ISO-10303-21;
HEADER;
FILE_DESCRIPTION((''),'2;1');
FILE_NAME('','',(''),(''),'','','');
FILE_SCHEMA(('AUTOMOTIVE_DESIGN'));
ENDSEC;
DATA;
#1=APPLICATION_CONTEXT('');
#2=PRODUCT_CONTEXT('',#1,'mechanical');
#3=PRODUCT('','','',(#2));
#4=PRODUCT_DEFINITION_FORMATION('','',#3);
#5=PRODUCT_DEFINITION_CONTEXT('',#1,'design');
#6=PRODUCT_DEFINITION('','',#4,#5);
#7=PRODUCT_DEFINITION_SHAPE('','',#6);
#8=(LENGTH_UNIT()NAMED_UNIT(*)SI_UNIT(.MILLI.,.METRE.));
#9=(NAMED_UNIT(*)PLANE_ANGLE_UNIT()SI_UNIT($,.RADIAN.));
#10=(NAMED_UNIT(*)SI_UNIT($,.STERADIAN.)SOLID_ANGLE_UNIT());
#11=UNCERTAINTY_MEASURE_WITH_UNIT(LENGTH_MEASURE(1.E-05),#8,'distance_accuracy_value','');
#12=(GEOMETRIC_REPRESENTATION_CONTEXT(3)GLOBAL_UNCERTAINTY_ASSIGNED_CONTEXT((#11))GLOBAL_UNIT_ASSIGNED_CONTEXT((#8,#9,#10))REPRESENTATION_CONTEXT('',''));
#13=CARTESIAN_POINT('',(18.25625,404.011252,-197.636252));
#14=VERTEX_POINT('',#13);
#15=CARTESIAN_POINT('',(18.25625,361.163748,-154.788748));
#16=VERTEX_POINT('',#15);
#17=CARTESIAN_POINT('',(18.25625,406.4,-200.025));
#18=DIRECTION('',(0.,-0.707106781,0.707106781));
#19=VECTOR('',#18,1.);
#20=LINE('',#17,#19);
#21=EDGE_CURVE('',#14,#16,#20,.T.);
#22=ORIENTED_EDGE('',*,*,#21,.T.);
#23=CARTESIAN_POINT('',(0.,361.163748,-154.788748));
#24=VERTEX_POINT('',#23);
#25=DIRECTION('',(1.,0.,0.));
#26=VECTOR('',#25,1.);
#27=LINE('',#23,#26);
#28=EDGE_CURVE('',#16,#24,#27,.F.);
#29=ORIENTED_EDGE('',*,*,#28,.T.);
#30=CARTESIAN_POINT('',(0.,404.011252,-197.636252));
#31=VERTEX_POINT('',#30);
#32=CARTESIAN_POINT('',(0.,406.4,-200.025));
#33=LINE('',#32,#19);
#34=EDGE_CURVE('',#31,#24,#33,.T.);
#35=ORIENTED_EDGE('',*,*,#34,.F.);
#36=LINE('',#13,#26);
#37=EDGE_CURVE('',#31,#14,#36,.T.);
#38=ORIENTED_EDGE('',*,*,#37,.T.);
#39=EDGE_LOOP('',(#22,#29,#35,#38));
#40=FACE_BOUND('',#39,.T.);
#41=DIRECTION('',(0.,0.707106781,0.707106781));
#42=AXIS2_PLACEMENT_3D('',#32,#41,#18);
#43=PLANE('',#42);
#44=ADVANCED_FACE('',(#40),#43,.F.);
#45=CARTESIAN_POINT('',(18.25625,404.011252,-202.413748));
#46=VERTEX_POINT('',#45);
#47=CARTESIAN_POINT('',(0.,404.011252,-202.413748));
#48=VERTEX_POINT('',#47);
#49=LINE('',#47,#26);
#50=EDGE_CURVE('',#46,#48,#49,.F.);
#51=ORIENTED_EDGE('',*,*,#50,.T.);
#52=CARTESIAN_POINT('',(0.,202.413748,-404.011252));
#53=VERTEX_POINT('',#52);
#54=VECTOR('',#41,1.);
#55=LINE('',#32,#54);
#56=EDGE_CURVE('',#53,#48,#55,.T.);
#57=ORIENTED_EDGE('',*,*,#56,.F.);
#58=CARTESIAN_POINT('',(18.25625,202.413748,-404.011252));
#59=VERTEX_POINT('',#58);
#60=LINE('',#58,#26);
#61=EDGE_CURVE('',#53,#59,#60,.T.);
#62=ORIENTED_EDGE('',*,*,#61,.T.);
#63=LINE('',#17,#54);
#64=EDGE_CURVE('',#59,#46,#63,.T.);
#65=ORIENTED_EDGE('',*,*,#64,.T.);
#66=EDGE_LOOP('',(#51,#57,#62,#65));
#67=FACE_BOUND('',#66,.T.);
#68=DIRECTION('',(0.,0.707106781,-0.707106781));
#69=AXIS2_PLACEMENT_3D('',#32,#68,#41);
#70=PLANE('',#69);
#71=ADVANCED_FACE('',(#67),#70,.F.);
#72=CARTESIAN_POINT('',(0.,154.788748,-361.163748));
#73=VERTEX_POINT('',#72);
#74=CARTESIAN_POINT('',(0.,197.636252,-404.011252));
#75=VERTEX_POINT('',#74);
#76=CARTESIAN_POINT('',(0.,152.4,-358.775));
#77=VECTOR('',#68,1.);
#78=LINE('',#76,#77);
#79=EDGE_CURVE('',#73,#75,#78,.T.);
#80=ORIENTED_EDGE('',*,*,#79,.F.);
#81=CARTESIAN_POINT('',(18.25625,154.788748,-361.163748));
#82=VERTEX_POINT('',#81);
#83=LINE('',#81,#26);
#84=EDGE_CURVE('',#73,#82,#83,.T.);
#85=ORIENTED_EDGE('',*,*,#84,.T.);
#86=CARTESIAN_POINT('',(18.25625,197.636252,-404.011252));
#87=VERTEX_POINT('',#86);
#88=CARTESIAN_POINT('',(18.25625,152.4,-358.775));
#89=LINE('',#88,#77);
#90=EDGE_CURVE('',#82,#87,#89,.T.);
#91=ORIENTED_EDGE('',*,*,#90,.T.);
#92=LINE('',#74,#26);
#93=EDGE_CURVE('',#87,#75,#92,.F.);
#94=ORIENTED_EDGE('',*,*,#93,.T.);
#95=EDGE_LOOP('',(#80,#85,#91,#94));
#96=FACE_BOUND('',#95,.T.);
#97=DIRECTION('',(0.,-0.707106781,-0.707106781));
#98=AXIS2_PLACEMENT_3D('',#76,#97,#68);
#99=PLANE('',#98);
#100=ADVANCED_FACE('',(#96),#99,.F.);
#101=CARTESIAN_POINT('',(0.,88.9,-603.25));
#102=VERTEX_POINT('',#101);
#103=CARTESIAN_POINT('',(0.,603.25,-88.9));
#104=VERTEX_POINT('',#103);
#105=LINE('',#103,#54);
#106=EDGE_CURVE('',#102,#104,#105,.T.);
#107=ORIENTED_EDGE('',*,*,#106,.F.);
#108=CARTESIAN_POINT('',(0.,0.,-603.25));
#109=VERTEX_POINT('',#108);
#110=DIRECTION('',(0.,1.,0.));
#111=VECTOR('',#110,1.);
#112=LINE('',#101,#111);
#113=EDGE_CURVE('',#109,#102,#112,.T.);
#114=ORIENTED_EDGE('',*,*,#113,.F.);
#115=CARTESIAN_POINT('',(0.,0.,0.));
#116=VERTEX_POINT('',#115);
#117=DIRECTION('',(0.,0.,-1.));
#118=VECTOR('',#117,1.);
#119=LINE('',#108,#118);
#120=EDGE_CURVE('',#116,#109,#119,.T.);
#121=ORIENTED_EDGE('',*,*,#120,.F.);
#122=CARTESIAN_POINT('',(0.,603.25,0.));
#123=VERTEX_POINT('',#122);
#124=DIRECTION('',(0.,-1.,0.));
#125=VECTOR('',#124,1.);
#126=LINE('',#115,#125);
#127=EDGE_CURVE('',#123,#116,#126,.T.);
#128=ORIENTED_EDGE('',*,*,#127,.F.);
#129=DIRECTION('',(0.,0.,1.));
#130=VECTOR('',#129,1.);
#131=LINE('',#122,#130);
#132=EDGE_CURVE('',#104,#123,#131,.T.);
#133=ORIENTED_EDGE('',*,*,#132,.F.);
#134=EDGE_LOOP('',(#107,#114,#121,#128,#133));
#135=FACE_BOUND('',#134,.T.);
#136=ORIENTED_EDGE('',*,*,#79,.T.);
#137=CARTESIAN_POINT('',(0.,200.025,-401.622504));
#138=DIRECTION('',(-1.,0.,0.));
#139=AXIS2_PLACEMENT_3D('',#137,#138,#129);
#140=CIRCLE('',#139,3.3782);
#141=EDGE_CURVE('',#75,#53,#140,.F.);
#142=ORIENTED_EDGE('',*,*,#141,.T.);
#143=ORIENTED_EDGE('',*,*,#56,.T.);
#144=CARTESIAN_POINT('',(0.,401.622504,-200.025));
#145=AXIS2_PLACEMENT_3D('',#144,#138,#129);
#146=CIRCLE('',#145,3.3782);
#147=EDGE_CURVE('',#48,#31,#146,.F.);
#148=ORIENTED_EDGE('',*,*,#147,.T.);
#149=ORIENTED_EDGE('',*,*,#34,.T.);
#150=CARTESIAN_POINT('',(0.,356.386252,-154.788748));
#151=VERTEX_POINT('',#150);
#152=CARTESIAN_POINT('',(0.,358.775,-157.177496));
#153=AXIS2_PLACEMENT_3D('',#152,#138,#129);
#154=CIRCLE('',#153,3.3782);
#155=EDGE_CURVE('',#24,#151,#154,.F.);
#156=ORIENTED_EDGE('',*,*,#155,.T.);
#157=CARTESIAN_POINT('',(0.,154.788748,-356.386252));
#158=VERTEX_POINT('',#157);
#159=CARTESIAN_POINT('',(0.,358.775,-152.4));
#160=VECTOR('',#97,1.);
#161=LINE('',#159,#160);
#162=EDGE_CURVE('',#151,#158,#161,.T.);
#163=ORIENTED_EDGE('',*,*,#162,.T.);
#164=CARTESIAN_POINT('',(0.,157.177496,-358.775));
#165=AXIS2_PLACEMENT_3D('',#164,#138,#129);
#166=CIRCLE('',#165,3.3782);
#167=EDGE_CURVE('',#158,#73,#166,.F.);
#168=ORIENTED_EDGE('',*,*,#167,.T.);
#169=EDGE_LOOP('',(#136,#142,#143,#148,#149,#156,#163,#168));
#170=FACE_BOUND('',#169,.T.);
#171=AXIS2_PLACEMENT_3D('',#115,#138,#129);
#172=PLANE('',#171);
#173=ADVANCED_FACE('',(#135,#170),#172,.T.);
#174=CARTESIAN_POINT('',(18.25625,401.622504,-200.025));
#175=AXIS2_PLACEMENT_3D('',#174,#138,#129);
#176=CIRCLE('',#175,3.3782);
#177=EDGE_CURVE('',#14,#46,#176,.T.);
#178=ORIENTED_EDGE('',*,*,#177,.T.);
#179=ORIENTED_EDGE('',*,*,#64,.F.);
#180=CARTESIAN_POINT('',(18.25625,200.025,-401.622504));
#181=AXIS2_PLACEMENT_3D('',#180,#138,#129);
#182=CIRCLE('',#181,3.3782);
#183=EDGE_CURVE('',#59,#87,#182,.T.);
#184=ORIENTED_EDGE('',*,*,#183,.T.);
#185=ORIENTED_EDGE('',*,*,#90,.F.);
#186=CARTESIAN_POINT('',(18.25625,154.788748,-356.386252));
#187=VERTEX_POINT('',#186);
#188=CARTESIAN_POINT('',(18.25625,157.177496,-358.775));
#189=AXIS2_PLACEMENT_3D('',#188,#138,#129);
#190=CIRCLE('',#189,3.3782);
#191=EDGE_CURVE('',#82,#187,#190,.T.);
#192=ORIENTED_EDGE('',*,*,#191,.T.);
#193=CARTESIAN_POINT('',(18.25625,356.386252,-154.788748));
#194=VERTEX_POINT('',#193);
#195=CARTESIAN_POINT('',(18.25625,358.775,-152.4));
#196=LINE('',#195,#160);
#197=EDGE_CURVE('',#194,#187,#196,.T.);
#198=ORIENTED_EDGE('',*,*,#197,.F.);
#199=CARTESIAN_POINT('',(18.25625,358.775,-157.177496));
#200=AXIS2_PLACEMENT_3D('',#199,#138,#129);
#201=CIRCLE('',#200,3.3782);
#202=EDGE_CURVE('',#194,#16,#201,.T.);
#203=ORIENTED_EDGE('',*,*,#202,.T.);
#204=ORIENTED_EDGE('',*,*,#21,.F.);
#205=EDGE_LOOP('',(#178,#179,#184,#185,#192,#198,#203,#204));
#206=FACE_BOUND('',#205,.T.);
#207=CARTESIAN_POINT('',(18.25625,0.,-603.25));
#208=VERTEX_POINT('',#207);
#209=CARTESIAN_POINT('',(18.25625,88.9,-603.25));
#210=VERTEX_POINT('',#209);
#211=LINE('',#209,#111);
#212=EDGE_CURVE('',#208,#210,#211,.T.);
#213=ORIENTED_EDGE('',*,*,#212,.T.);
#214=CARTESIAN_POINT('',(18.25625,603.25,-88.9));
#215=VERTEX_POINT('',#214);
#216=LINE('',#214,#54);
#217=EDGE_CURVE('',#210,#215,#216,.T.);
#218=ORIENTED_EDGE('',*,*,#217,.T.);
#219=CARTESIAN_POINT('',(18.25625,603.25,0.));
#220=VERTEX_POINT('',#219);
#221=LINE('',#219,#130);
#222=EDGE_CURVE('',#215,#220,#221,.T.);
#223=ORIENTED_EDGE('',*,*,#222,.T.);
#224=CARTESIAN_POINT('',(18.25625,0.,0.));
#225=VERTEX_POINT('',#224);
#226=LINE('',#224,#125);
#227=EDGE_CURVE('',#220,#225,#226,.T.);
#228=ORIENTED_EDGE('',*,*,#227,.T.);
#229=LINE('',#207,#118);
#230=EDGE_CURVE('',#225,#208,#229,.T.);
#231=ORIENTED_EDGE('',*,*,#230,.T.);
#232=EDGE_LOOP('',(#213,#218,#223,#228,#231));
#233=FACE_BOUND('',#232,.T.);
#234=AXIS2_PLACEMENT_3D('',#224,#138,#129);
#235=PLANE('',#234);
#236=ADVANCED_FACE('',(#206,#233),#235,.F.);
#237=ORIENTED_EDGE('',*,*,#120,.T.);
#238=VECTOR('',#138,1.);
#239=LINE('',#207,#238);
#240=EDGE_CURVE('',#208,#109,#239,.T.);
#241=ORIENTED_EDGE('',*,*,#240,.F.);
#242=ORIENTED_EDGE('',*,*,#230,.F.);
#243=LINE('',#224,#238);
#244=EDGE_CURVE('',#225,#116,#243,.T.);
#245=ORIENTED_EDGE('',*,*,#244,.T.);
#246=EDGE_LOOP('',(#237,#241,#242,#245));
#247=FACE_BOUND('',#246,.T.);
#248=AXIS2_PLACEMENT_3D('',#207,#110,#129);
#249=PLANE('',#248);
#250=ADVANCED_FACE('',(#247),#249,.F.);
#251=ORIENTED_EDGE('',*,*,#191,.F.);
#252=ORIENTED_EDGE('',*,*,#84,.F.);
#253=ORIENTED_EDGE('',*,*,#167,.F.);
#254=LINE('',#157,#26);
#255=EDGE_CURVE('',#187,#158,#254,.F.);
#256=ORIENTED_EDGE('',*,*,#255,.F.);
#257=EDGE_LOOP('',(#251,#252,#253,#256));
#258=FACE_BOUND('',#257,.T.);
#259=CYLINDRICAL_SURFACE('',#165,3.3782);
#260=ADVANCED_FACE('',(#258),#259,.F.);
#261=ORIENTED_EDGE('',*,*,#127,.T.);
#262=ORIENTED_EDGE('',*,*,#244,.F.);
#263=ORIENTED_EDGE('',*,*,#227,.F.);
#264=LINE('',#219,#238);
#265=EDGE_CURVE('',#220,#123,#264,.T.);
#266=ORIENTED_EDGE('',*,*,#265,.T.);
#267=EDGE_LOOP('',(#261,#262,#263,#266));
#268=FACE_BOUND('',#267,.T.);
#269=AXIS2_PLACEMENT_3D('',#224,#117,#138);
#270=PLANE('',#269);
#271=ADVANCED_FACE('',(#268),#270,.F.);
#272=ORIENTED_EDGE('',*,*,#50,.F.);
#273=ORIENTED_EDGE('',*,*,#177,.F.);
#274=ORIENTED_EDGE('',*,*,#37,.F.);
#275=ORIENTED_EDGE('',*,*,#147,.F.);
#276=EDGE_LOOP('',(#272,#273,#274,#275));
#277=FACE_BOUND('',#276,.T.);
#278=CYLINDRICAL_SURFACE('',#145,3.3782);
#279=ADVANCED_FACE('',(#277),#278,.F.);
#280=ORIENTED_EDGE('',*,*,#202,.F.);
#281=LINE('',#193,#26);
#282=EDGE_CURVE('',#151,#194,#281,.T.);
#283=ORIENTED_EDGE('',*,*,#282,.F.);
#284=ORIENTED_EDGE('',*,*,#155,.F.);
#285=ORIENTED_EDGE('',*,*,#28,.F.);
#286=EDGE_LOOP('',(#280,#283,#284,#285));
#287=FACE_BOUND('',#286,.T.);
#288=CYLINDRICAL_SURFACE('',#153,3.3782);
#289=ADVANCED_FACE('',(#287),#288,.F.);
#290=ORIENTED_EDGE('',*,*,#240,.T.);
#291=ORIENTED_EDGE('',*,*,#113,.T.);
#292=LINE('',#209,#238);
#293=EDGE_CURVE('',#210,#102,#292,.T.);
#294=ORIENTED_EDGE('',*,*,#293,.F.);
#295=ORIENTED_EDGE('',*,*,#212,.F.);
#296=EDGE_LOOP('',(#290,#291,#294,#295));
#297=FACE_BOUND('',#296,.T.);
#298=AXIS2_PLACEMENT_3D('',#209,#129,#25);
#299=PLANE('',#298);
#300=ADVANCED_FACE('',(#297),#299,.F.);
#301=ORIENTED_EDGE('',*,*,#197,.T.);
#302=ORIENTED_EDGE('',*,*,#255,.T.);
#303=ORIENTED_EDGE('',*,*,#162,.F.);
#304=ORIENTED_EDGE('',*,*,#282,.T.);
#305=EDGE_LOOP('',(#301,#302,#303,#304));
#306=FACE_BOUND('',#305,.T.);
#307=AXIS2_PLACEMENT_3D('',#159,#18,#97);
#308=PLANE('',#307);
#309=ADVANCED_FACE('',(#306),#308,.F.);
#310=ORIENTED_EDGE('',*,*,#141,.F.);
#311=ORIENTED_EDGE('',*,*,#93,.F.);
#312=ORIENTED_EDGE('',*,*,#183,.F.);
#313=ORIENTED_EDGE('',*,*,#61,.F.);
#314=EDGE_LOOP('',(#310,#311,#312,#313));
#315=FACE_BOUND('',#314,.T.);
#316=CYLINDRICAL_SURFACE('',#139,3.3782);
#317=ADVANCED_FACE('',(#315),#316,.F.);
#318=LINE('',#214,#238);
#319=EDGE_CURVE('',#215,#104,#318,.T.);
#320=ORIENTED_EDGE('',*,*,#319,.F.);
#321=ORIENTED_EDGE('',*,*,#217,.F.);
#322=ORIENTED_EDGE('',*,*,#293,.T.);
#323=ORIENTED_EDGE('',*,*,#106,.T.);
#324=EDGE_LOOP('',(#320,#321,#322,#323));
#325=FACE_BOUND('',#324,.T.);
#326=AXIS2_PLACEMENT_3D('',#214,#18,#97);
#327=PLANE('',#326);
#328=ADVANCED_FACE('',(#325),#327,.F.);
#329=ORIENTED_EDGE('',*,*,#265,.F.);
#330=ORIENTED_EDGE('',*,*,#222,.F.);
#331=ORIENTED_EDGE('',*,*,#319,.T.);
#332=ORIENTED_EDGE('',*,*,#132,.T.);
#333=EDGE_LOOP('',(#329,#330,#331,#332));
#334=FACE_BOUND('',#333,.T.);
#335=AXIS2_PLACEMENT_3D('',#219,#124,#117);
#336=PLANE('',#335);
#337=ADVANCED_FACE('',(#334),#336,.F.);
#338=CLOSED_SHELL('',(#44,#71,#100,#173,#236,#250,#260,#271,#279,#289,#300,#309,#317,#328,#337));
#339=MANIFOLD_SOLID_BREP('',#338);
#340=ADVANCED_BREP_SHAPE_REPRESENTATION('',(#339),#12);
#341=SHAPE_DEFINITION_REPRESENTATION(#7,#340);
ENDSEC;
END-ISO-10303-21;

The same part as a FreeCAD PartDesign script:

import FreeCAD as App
import Part
import Sketcher

V = App.Vector
Q = App.Units.Quantity


def edges_at(feature, points):
    """Names of the edges that pass closest to the given points."""
    edges = feature.Shape.Edges
    near = lambda p: min(range(len(edges)), key=lambda i: edges[i].distToShape(Part.Vertex(*p))[0])
    return sorted({f"Edge{near(p) + 1}" for p in points})

doc = App.newDocument("Part")
body = doc.addObject("PartDesign::Body", "Body")

sketch1 = body.newObject("Sketcher::SketchObject", "Sketch")
sketch1.AttachmentSupport = (doc.getObject("YZ_Plane"), [""])
sketch1.MapMode = "FlatFace"
sketch1.addGeometry([
    Part.LineSegment(V(603.25, 0, 0), V(0, 0, 0)),
    Part.LineSegment(V(0, 0, 0), V(0, -603.25, 0)),
    Part.LineSegment(V(0, -603.25, 0), V(88.9, -603.25, 0)),
    Part.LineSegment(V(88.9, -603.25, 0), V(603.25, -88.9, 0)),
    Part.LineSegment(V(603.25, -88.9, 0), V(603.25, 0, 0)),
], False)
sketch1.addConstraint([
    Sketcher.Constraint("Coincident", 0, 2, 1, 1),
    Sketcher.Constraint("Coincident", 1, 2, 2, 1),
    Sketcher.Constraint("Coincident", 2, 2, 3, 1),
    Sketcher.Constraint("Coincident", 3, 2, 4, 1),
    Sketcher.Constraint("Coincident", 4, 2, 0, 1),
    Sketcher.Constraint("Horizontal", 0),
    Sketcher.Constraint("Vertical", 1),
    Sketcher.Constraint("Horizontal", 2),
    Sketcher.Constraint("Vertical", 4),
    Sketcher.Constraint("Coincident", 0, 2, -1, 1),
    Sketcher.Constraint("Equal", 0, 1),
    Sketcher.Constraint("Equal", 2, 4),
    Sketcher.Constraint("DistanceX", 2, 1, 2, 2, Q("3.5 in")),
    Sketcher.Constraint("DistanceX", 0, 2, 0, 1, Q("23.75 in")),
])
pad1 = body.newObject("PartDesign::Pad", "Pad")
pad1.Profile = sketch1
pad1.Length = Q("0.71875 in")

sketch2 = body.newObject("Sketcher::SketchObject", "Sketch001")
sketch2.AttachmentSupport = (doc.getObject("YZ_Plane"), [""])
sketch2.MapMode = "FlatFace"
sketch2.AttachmentOffset = App.Placement(V(0, 0, 0.71875 * 25.4), App.Rotation())
sketch2.addGeometry([
    Part.LineSegment(V(200.025, -406.4, 0), V(406.4, -200.025, 0)),
    Part.LineSegment(V(406.4, -200.025, 0), V(358.775, -152.4, 0)),
    Part.LineSegment(V(358.775, -152.4, 0), V(152.4, -358.775, 0)),
    Part.LineSegment(V(152.4, -358.775, 0), V(200.025, -406.4, 0)),
], False)
sketch2.addConstraint([
    Sketcher.Constraint("Coincident", 0, 2, 1, 1),
    Sketcher.Constraint("Coincident", 1, 2, 2, 1),
    Sketcher.Constraint("Coincident", 2, 2, 3, 1),
    Sketcher.Constraint("Coincident", 3, 2, 0, 1),
    Sketcher.Constraint("Perpendicular", 0, 1),
    Sketcher.Constraint("Perpendicular", 1, 2),
    Sketcher.Constraint("Perpendicular", 2, 3),
    Sketcher.Constraint("DistanceX", -1, 1, 0, 2, Q("16 in")),
    Sketcher.Constraint("DistanceY", 1, 2, -1, 1, Q("6 in")),
    Sketcher.Constraint("DistanceX", -1, 1, 2, 2, Q("6 in")),
    Sketcher.Constraint("DistanceY", 3, 2, -1, 1, Q("16 in")),
    Sketcher.Constraint("DistanceY", 2, 2, 0, 2, Q("6.25 in")),
])
pocket1 = body.newObject("PartDesign::Pocket", "Pocket")
pocket1.Profile = sketch2
pocket1.Type = "ThroughAll"
doc.recompute()

fillet = body.newObject("PartDesign::Fillet", "Fillet")
fillet.Base = (pocket1, edges_at(pocket1, [
    (9.128, 358.775, -152.4),
    (9.128, 406.4, -200.025),
    (9.128, 200.025, -406.4),
    (9.128, 152.4, -358.775),
]))
fillet.Radius = Q("0.133 in")

doc.recompute()
